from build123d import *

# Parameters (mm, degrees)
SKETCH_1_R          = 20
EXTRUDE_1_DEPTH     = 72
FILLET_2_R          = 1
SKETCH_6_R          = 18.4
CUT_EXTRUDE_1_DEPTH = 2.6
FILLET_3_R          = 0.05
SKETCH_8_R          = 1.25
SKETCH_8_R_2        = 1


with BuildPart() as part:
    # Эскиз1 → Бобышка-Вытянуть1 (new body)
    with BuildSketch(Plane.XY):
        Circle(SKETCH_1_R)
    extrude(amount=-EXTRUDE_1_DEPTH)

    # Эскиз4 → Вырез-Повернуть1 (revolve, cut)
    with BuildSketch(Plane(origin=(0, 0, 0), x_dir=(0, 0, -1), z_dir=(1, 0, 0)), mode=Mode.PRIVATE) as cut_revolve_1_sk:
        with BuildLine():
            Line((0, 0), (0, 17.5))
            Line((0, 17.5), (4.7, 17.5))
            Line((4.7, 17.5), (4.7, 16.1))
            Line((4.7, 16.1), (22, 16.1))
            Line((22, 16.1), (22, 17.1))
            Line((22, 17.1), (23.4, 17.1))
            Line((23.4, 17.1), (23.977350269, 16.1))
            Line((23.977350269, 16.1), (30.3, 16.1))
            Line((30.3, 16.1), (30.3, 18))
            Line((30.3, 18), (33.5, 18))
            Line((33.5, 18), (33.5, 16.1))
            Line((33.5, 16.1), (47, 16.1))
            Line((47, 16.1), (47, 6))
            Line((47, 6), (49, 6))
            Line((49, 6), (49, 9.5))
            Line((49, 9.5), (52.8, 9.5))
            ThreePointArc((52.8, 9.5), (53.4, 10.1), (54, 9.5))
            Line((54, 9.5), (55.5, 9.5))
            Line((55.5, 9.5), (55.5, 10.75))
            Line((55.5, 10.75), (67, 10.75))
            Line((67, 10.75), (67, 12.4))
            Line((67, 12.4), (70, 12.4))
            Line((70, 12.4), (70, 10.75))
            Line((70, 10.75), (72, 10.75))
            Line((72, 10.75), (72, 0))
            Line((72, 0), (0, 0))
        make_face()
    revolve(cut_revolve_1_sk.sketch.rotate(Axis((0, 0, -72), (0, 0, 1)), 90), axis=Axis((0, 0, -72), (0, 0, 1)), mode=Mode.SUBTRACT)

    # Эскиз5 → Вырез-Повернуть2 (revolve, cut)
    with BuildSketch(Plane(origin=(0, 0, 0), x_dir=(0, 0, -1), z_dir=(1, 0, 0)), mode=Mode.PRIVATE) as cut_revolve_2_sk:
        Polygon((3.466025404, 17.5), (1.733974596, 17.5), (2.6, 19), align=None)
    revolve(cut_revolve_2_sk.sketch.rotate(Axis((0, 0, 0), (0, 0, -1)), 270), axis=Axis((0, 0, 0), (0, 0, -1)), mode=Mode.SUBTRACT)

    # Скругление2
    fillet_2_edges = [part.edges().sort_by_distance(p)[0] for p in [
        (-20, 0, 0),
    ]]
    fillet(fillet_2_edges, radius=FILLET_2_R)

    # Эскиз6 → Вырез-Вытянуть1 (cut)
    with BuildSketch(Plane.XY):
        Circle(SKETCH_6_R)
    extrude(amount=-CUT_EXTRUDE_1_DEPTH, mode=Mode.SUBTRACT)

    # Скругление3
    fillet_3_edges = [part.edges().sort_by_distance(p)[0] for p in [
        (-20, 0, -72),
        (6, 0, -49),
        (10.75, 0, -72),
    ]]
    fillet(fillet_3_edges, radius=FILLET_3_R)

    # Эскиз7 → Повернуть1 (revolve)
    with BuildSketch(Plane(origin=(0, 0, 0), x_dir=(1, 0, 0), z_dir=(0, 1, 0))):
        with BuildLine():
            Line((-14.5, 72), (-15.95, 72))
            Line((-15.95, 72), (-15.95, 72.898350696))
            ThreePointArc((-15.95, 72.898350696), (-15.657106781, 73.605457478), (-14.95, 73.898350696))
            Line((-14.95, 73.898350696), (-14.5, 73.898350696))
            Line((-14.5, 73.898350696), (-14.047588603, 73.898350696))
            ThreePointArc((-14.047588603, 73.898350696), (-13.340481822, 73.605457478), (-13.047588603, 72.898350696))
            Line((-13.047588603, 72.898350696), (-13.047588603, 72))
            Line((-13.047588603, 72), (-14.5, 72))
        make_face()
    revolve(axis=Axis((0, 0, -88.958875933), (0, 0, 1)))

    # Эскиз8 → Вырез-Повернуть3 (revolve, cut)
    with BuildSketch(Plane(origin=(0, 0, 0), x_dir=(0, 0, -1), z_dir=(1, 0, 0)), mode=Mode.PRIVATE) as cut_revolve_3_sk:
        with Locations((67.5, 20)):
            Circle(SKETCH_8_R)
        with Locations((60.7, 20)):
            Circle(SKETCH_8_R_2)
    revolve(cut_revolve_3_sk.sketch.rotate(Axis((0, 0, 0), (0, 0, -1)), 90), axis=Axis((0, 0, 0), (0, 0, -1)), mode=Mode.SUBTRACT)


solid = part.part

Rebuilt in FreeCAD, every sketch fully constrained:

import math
import FreeCAD as App
import Part
import Sketcher
from FreeCAD import Vector
Q = App.Units.Quantity


def edges_at(feature, points):
    """Names of the edges that pass closest to the given points."""
    edges = feature.Shape.Edges
    near = lambda p: min(range(len(edges)), key=lambda i: edges[i].distToShape(Part.Vertex(*p))[0])
    return sorted({f"Edge{near(p) + 1}" for p in points})


def add_polygon(sketch, points):
    """Adds a closed chain of lines whose ends are joined by coincident constraints."""
    first, n = sketch.GeometryCount, len(points)
    for a, b in zip(points, points[1:] + points[:1]):
        sketch.addGeometry(Part.LineSegment(App.Vector(*a, 0), App.Vector(*b, 0)), False)
    for i in range(n):
        sketch.addConstraint(Sketcher.Constraint("Coincident", first + i, 2, first + (i + 1) % n, 1))

doc = App.newDocument("Part")
body = doc.addObject("PartDesign::Body", "Body")

# Sketch on XY plane
sketch1 = body.newObject("Sketcher::SketchObject", "Sketch")
sketch1.AttachmentSupport = (doc.getObject("XY_Plane"), [""])
sketch1.MapMode = "FlatFace"
sketch1.addGeometry(Part.Circle(Vector(0, 0, 0), Vector(0, 0, 1), 20), False)
sketch1.addConstraint([
    Sketcher.Constraint("Coincident", 0, 3, -1, 1),
    Sketcher.Constraint("Diameter", 0, Q("40 mm")),
])
pad1 = body.newObject("PartDesign::Pad", "Pad")
pad1.Profile = sketch1
pad1.Length = 72
pad1.Reversed = True

# Sketch on YZ plane
sketch2 = body.newObject("Sketcher::SketchObject", "Sketch001")
sketch2.AttachmentSupport = (doc.getObject("YZ_Plane"), [""])
sketch2.MapMode = "FlatFace"
sketch2.addGeometry([
    Part.LineSegment(Vector(17.5, 0, 0), Vector(0, 0, 0)),  # 0
    Part.LineSegment(Vector(0, 0, 0), Vector(0, -72, 0)),  # 1
    Part.LineSegment(Vector(0, -72, 0), Vector(10.75, -72, 0)),  # 2
    Part.LineSegment(Vector(10.75, -72, 0), Vector(10.75, -70, 0)),  # 3
    Part.LineSegment(Vector(10.75, -70, 0), Vector(12.4, -70, 0)),  # 4
    Part.LineSegment(Vector(12.4, -70, 0), Vector(12.4, -67, 0)),  # 5
    Part.LineSegment(Vector(12.4, -67, 0), Vector(10.75, -67, 0)),  # 6
    Part.LineSegment(Vector(10.75, -67, 0), Vector(10.75, -55.5, 0)),  # 7
    Part.LineSegment(Vector(10.75, -55.5, 0), Vector(9.5, -55.5, 0)),  # 8
    Part.LineSegment(Vector(9.5, -55.5, 0), Vector(9.5, -54, 0)),  # 9
    Part.ArcOfCircle(Part.Circle(Vector(9.5, -53.4, 0), Vector(0, 0, 1), 0.6), math.radians(-90), math.radians(90)),  # 10
    Part.LineSegment(Vector(9.5, -52.8, 0), Vector(9.5, -49, 0)),  # 11
    Part.LineSegment(Vector(9.5, -49, 0), Vector(6, -49, 0)),  # 12
    Part.LineSegment(Vector(6, -49, 0), Vector(6, -47, 0)),  # 13
    Part.LineSegment(Vector(6, -47, 0), Vector(16.1, -47, 0)),  # 14
    Part.LineSegment(Vector(16.1, -47, 0), Vector(16.1, -33.5, 0)),  # 15
    Part.LineSegment(Vector(16.1, -33.5, 0), Vector(18, -33.5, 0)),  # 16
    Part.LineSegment(Vector(18, -33.5, 0), Vector(18, -30.3, 0)),  # 17
    Part.LineSegment(Vector(18, -30.3, 0), Vector(16.1, -30.3, 0)),  # 18
    Part.LineSegment(Vector(16.1, -30.3, 0), Vector(16.1, -23.97735, 0)),  # 19
    Part.LineSegment(Vector(16.1, -23.97735, 0), Vector(17.1, -23.4, 0)),  # 20
    Part.LineSegment(Vector(17.1, -23.4, 0), Vector(17.1, -22, 0)),  # 21
    Part.LineSegment(Vector(17.1, -22, 0), Vector(16.1, -22, 0)),  # 22
    Part.LineSegment(Vector(16.1, -22, 0), Vector(16.1, -4.7, 0)),  # 23
    Part.LineSegment(Vector(16.1, -4.7, 0), Vector(17.5, -4.7, 0)),  # 24
    Part.LineSegment(Vector(17.5, -4.7, 0), Vector(17.5, 0, 0)),  # 25
], False)
sketch2.addConstraint([
    Sketcher.Constraint("Coincident", 0, 2, 1, 1),
    Sketcher.Constraint("Coincident", 1, 2, 2, 1),
    Sketcher.Constraint("Coincident", 2, 2, 3, 1),
    Sketcher.Constraint("Coincident", 3, 2, 4, 1),
    Sketcher.Constraint("Coincident", 4, 2, 5, 1),
    Sketcher.Constraint("Coincident", 5, 2, 6, 1),
    Sketcher.Constraint("Coincident", 6, 2, 7, 1),
    Sketcher.Constraint("Coincident", 7, 2, 8, 1),
    Sketcher.Constraint("Coincident", 8, 2, 9, 1),
    Sketcher.Constraint("Coincident", 9, 2, 10, 1),
    Sketcher.Constraint("Coincident", 10, 2, 11, 1),
    Sketcher.Constraint("Coincident", 11, 2, 12, 1),
    Sketcher.Constraint("Coincident", 12, 2, 13, 1),
    Sketcher.Constraint("Coincident", 13, 2, 14, 1),
    Sketcher.Constraint("Coincident", 14, 2, 15, 1),
    Sketcher.Constraint("Coincident", 15, 2, 16, 1),
    Sketcher.Constraint("Coincident", 16, 2, 17, 1),
    Sketcher.Constraint("Coincident", 17, 2, 18, 1),
    Sketcher.Constraint("Coincident", 18, 2, 19, 1),
    Sketcher.Constraint("Coincident", 19, 2, 20, 1),
    Sketcher.Constraint("Coincident", 20, 2, 21, 1),
    Sketcher.Constraint("Coincident", 21, 2, 22, 1),
    Sketcher.Constraint("Coincident", 22, 2, 23, 1),
    Sketcher.Constraint("Coincident", 23, 2, 24, 1),
    Sketcher.Constraint("Coincident", 24, 2, 25, 1),
    Sketcher.Constraint("Coincident", 25, 2, 0, 1),
    Sketcher.Constraint("Horizontal", 0),
    Sketcher.Constraint("Vertical", 1),
    Sketcher.Constraint("Horizontal", 2),
    Sketcher.Constraint("Vertical", 3),
    Sketcher.Constraint("Horizontal", 4),
    Sketcher.Constraint("Vertical", 5),
    Sketcher.Constraint("Horizontal", 6),
    Sketcher.Constraint("Vertical", 7),
    Sketcher.Constraint("Horizontal", 8),
    Sketcher.Constraint("Vertical", 9),
    Sketcher.Constraint("Vertical", 11),
    Sketcher.Constraint("Horizontal", 12),
    Sketcher.Constraint("Vertical", 13),
    Sketcher.Constraint("Horizontal", 14),
    Sketcher.Constraint("Vertical", 15),
    Sketcher.Constraint("Horizontal", 16),
    Sketcher.Constraint("Vertical", 17),
    Sketcher.Constraint("Horizontal", 18),
    Sketcher.Constraint("Vertical", 19),
    Sketcher.Constraint("Vertical", 21),
    Sketcher.Constraint("Horizontal", 22),
    Sketcher.Constraint("Vertical", 23),
    Sketcher.Constraint("Horizontal", 24),
    Sketcher.Constraint("Vertical", 25),
    Sketcher.Constraint("Coincident", 0, 2, -1, 1),
    Sketcher.Constraint("Vertical", 3, 2, 6, 2),
    Sketcher.Constraint("Vertical", 10, 3, 8, 2),
    Sketcher.Constraint("Vertical", 9, 2, 10, 2),
    Sketcher.Constraint("Vertical", 15, 2, 18, 2),
    Sketcher.Constraint("Vertical", 19, 2, 22, 2),
    Sketcher.Constraint("Equal", 3, 13),
    Sketcher.Constraint("Equal", 24, 21),
    Sketcher.Constraint("Radius", 10, Q("0.6 mm")),
    Sketcher.Constraint("DistanceX", 22, 2, 22, 1, Q("1 mm")),
    Sketcher.Constraint("DistanceY", 1, 2, 1, 1, Q("72 mm")),
    Sketcher.Constraint("DistanceY", 3, 1, 3, 2, Q("2 mm")),
    Sketcher.Constraint("DistanceY", 5, 1, 5, 2, Q("3 mm")),
    Sketcher.Constraint("Angle", 20, Q("30 deg")),
    Sketcher.Constraint("DistanceX", 0, 2, 0, 1, Q("17.5 mm")),
    Sketcher.Constraint("DistanceX", 12, 2, 12, 1, Q("3.5 mm")),
    Sketcher.Constraint("DistanceX", 14, 1, 14, 2, Q("10.1 mm")),
    Sketcher.Constraint("DistanceX", 16, 1, 16, 2, Q("1.9 mm")),
    Sketcher.Constraint("DistanceX", 24, 1, 24, 2, Q("1.4 mm")),
    Sketcher.Constraint("DistanceY", 7, 1, 7, 2, Q("11.5 mm")),
    Sketcher.Constraint("DistanceY", 9, 1, 9, 2, Q("1.5 mm")),
    Sketcher.Constraint("DistanceY", 11, 1, 11, 2, Q("3.8 mm")),
    Sketcher.Constraint("DistanceY", 15, 1, 15, 2, Q("13.5 mm")),
    Sketcher.Constraint("DistanceY", 17, 1, 17, 2, Q("3.2 mm")),
    Sketcher.Constraint("DistanceY", 23, 1, 23, 2, Q("17.3 mm")),
    Sketcher.Constraint("DistanceY", 25, 1, 25, 2, Q("4.7 mm")),
    Sketcher.Constraint("DistanceX", 2, 1, 2, 2, Q("10.75 mm")),
    Sketcher.Constraint("DistanceX", 4, 1, 4, 2, Q("1.65 mm")),
])
groove = body.newObject("PartDesign::Groove", "Groove")
groove.Profile = sketch2
groove.ReferenceAxis = (sketch2, ["V_Axis"])
groove.Angle = 360

# Sketch on YZ plane
sketch3 = body.newObject("Sketcher::SketchObject", "Sketch002")
sketch3.AttachmentSupport = (doc.getObject("YZ_Plane"), [""])
sketch3.MapMode = "FlatFace"
add_polygon(sketch3, [(17.5, -1.733975), (17.5, -3.466025), (19, -2.6)])  # lines 0-2
sketch3.addConstraint([
    Sketcher.Constraint("Vertical", 0),
    Sketcher.Constraint("Equal", 1, 2),
    Sketcher.Constraint("Angle", 1, Q("30 deg")),
    Sketcher.Constraint("DistanceX", -1, 1, 1, 2, Q("19 mm")),
    Sketcher.Constraint("DistanceX", -1, 1, 0, 2, Q("17.5 mm")),
    Sketcher.Constraint("DistanceY", 1, 2, -1, 1, Q("2.6 mm")),
])
groove2 = body.newObject("PartDesign::Groove", "Groove001")
groove2.Profile = sketch3
groove2.ReferenceAxis = (sketch3, ["V_Axis"])
groove2.Angle = 360
doc.recompute()

fillet = body.newObject("PartDesign::Fillet", "Fillet")
fillet.Base = (groove2, edges_at(groove2, [(-20, 0, 0)]))
fillet.Radius = 1

# Sketch on XY plane
sketch4 = body.newObject("Sketcher::SketchObject", "Sketch003")
sketch4.AttachmentSupport = (doc.getObject("XY_Plane"), [""])
sketch4.MapMode = "FlatFace"
sketch4.addGeometry(Part.Circle(Vector(0, 0, 0), Vector(0, 0, 1), 18.4), False)
sketch4.addConstraint([
    Sketcher.Constraint("Coincident", 0, 3, -1, 1),
    Sketcher.Constraint("Diameter", 0, Q("36.8 mm")),
])
pocket1 = body.newObject("PartDesign::Pocket", "Pocket")
pocket1.Profile = sketch4
pocket1.Length = 2.6
doc.recompute()

fillet2 = body.newObject("PartDesign::Fillet", "Fillet001")
fillet2.Base = (pocket1, edges_at(pocket1, [(-20, 0, -72), (6, 0, -49), (10.75, 0, -72)]))
fillet2.Radius = 0.05

# Sketch on XZ plane
sketch5 = body.newObject("Sketcher::SketchObject", "Sketch004")
sketch5.AttachmentSupport = (doc.getObject("XZ_Plane"), [""])
sketch5.MapMode = "FlatFace"
sketch5.addGeometry([
    Part.LineSegment(Vector(-15.95, -72.898351, 0), Vector(-15.95, -72, 0)),  # 0
    Part.LineSegment(Vector(-15.95, -72, 0), Vector(-13.047589, -72, 0)),  # 1
    Part.LineSegment(Vector(-13.047589, -72, 0), Vector(-13.047589, -72.898351, 0)),  # 2
    Part.ArcOfCircle(Part.Circle(Vector(-14.047589, -72.898351, 0), Vector(0, 0, 1), 1), math.radians(-90), math.radians(0)),  # 3
    Part.LineSegment(Vector(-14.047589, -73.898351, 0), Vector(-14.95, -73.898351, 0)),  # 4
    Part.ArcOfCircle(Part.Circle(Vector(-14.95, -72.898351, 0), Vector(0, 0, 1), 1), math.radians(180), math.radians(270)),  # 5
], False)
sketch5.addConstraint([
    Sketcher.Constraint("Coincident", 0, 2, 1, 1),
    Sketcher.Constraint("Coincident", 1, 2, 2, 1),
    Sketcher.Constraint("Tangent", 2, 2, 3, 2),
    Sketcher.Constraint("Tangent", 3, 1, 4, 1),
    Sketcher.Constraint("Tangent", 4, 2, 5, 2),
    Sketcher.Constraint("Tangent", 5, 1, 0, 1),
    Sketcher.Constraint("Vertical", 0),
    Sketcher.Constraint("Horizontal", 1),
    Sketcher.Constraint("Vertical", 2),
    Sketcher.Constraint("Horizontal", 4),
    Sketcher.Constraint("Equal", 3, 5),
    Sketcher.Constraint("Radius", 3, Q("1 mm")),
    Sketcher.Constraint("DistanceY", 0, 2, -1, 1, Q("72 mm")),
    Sketcher.Constraint("DistanceX", 5, 3, -1, 1, Q("14.95 mm")),
    Sketcher.Constraint("DistanceX", 1, 1, 1, 2, Q("2.902411 mm")),
    Sketcher.Constraint("DistanceY", 0, 1, 0, 2, Q("0.898351 mm")),
])
revolution = body.newObject("PartDesign::Revolution", "Revolution")
revolution.Profile = sketch5
revolution.ReferenceAxis = (sketch5, ["V_Axis"])
revolution.Angle = 360

# Sketch on YZ plane
sketch6 = body.newObject("Sketcher::SketchObject", "Sketch005")
sketch6.AttachmentSupport = (doc.getObject("YZ_Plane"), [""])
sketch6.MapMode = "FlatFace"
sketch6.addGeometry([
    Part.Circle(Vector(20, -67.5, 0), Vector(0, 0, 1), 1.25),
    Part.Circle(Vector(20, -60.7, 0), Vector(0, 0, 1), 1),
], False)
sketch6.addConstraint([
    Sketcher.Constraint("Vertical", 0, 3, 1, 3),
    Sketcher.Constraint("Diameter", 1, Q("2 mm")),
    Sketcher.Constraint("Diameter", 0, Q("2.5 mm")),
    Sketcher.Constraint("DistanceX", -1, 1, 0, 3, Q("20 mm")),
    Sketcher.Constraint("DistanceY", 0, 3, -1, 1, Q("67.5 mm")),
    Sketcher.Constraint("DistanceY", 1, 3, -1, 1, Q("60.7 mm")),
])
groove3 = body.newObject("PartDesign::Groove", "Groove002")
groove3.Profile = sketch6
groove3.ReferenceAxis = (sketch6, ["V_Axis"])
groove3.Angle = 360

doc.recompute()
